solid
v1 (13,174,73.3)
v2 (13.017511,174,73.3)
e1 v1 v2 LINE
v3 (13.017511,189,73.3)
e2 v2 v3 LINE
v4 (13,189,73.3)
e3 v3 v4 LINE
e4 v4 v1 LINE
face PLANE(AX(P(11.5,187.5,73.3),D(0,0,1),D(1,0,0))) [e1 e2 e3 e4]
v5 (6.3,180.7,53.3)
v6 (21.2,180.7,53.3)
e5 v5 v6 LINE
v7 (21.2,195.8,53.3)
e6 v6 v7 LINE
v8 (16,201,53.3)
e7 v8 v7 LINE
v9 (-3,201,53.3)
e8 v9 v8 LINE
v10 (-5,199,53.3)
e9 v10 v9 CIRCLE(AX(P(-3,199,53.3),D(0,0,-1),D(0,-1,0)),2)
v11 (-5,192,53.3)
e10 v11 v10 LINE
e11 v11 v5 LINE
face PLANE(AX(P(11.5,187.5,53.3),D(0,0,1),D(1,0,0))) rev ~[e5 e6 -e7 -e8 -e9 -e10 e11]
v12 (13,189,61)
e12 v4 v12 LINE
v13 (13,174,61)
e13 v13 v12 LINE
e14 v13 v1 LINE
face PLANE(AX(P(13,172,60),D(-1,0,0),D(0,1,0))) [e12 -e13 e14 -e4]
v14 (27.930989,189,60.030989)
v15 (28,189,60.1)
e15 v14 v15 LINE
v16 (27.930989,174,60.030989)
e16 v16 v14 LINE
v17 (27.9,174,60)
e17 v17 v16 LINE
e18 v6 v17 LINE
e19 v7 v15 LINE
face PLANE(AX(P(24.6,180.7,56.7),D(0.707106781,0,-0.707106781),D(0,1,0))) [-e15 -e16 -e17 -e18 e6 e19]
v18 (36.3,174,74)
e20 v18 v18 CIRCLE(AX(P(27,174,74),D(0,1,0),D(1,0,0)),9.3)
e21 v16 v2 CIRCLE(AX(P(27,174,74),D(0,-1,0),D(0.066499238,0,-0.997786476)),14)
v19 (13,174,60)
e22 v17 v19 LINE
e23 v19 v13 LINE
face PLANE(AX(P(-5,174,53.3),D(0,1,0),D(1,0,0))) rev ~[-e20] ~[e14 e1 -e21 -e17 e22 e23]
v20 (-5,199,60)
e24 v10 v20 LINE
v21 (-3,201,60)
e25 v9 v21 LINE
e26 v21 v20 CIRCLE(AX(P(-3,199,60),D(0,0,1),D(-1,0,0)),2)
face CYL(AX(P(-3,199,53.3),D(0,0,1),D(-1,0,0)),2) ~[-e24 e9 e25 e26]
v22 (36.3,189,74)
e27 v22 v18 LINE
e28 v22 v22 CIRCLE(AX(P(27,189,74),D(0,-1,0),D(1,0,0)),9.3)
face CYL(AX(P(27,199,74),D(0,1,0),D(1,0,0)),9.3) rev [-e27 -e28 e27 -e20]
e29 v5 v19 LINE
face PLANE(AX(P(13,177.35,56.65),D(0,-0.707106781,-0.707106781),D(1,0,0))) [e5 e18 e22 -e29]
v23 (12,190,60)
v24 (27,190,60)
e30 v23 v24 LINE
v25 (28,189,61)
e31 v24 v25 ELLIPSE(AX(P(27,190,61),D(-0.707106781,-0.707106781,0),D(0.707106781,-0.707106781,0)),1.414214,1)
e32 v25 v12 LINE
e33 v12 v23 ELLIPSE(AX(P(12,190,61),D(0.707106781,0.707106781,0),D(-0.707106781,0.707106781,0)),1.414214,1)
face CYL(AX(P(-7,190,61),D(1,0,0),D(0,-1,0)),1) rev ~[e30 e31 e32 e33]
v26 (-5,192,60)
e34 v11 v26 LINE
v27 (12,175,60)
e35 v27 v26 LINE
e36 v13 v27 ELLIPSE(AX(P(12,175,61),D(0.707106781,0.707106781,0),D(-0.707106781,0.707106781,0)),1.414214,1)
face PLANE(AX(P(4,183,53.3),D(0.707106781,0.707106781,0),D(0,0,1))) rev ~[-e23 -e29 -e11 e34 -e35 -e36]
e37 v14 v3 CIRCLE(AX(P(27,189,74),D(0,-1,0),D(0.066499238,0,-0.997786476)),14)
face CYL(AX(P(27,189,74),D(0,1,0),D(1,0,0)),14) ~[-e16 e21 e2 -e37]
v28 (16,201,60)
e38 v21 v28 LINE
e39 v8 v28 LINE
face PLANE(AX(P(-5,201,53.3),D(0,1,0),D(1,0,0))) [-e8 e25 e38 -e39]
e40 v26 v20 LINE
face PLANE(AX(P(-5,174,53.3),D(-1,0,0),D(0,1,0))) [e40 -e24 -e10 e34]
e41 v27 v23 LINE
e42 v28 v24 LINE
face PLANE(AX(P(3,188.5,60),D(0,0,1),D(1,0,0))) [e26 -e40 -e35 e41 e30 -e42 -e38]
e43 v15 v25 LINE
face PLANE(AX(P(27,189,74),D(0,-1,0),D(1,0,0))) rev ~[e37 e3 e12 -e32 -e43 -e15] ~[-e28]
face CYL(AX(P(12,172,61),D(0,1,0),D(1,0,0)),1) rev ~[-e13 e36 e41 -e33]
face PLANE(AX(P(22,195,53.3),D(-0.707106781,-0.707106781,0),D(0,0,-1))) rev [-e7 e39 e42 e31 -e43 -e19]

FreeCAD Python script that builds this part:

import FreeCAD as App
import Part
import Sketcher
Q = App.Units.Quantity


def edges_at(feature, points):
    """Names of the edges that pass closest to the given points."""
    edges = feature.Shape.Edges
    near = lambda p: min(range(len(edges)), key=lambda i: edges[i].distToShape(Part.Vertex(*p))[0])
    return sorted({f"Edge{near(p) + 1}" for p in points})

doc = App.newDocument("Part")
body = doc.addObject("PartDesign::Body", "Body")

# Sketch on XZ plane
sketch1 = doc.addObject("Sketcher::SketchObject", "Sketch")
body.addObject(sketch1)
sketch1.AttachmentSupport = (doc.XZ_Plane, [""])
sketch1.MapMode = "FlatFace"
sketch1.AttachmentOffset = App.Placement(App.Vector(0, 0, -199), App.Rotation())
sketch1.addGeometry(Part.Circle(App.Vector(27, 74, 0), App.Vector(0, 0, 1), 9.3), False)
sketch1.addConstraint(Sketcher.Constraint("Diameter", 0, Q("18.6 mm")))
sketch1.addConstraint(Sketcher.Constraint("DistanceX", -1, 1, 0, 3, Q("27 mm")))
sketch1.addConstraint(Sketcher.Constraint("DistanceY", -1, 1, 0, 3, Q("74 mm")))
pad1 = doc.addObject("PartDesign::Pad", "Pad")
body.addObject(pad1)
pad1.Profile = sketch1
pad1.Length = 30
body2 = doc.addObject("PartDesign::Body", "Body001")

# Sketch on XY plane
sketch2 = doc.addObject("Sketcher::SketchObject", "Sketch001")
body2.addObject(sketch2)
sketch2.AttachmentSupport = (doc.getObject("XY_Plane001"), [""])
sketch2.MapMode = "FlatFace"
sketch2.AttachmentOffset = App.Placement(App.Vector(0, 0, 60), App.Rotation())
sketch2.addGeometry(Part.LineSegment(App.Vector(-7, 205, 0), App.Vector(-7, 189, 0)), False)
sketch2.addGeometry(Part.LineSegment(App.Vector(-7, 189, 0), App.Vector(31, 189, 0)), False)
sketch2.addGeometry(Part.LineSegment(App.Vector(31, 189, 0), App.Vector(31, 205, 0)), False)
sketch2.addGeometry(Part.LineSegment(App.Vector(31, 205, 0), App.Vector(-7, 205, 0)), False)
sketch2.addConstraint(Sketcher.Constraint("Coincident", 0, 2, 1, 1))
sketch2.addConstraint(Sketcher.Constraint("Coincident", 1, 2, 2, 1))
sketch2.addConstraint(Sketcher.Constraint("Coincident", 2, 2, 3, 1))
sketch2.addConstraint(Sketcher.Constraint("Coincident", 3, 2, 0, 1))
sketch2.addConstraint(Sketcher.Constraint("Vertical", 0))
sketch2.addConstraint(Sketcher.Constraint("Horizontal", 1))
sketch2.addConstraint(Sketcher.Constraint("Vertical", 2))
sketch2.addConstraint(Sketcher.Constraint("Horizontal", 3))
sketch2.addConstraint(Sketcher.Constraint("DistanceX", 1, 1, 1, 2, Q("38 mm")))
sketch2.addConstraint(Sketcher.Constraint("DistanceY", 0, 2, 0, 1, Q("16 mm")))
sketch2.addConstraint(Sketcher.Constraint("DistanceX", 0, 2, -1, 1, Q("7 mm")))
sketch2.addConstraint(Sketcher.Constraint("DistanceY", -1, 1, 0, 2, Q("189 mm")))
pad2 = doc.addObject("PartDesign::Pad", "Pad001")
body2.addObject(pad2)
pad2.Profile = sketch2
pad2.Length = 16
doc.recompute()

fillet = doc.addObject("PartDesign::Fillet", "Fillet")
body2.addObject(fillet)
fillet.Base = (pad2, edges_at(pad2, [(12, 189, 60)]))
fillet.Radius = 1
body3 = doc.addObject("PartDesign::Body", "Body002")

# Sketch on XY plane
sketch3 = doc.addObject("Sketcher::SketchObject", "Sketch002")
body3.addObject(sketch3)
sketch3.AttachmentSupport = (doc.getObject("XY_Plane002"), [""])
sketch3.MapMode = "FlatFace"
sketch3.AttachmentOffset = App.Placement(App.Vector(0, 0, 60), App.Rotation())
sketch3.addGeometry(Part.LineSegment(App.Vector(-7, 205, 0), App.Vector(-7, 172, 0)), False)
sketch3.addGeometry(Part.LineSegment(App.Vector(-7, 172, 0), App.Vector(13, 172, 0)), False)
sketch3.addGeometry(Part.LineSegment(App.Vector(13, 172, 0), App.Vector(13, 205, 0)), False)
sketch3.addGeometry(Part.LineSegment(App.Vector(13, 205, 0), App.Vector(-7, 205, 0)), False)
sketch3.addConstraint(Sketcher.Constraint("Coincident", 0, 2, 1, 1))
sketch3.addConstraint(Sketcher.Constraint("Coincident", 1, 2, 2, 1))
sketch3.addConstraint(Sketcher.Constraint("Coincident", 2, 2, 3, 1))
sketch3.addConstraint(Sketcher.Constraint("Coincident", 3, 2, 0, 1))
sketch3.addConstraint(Sketcher.Constraint("Vertical", 0))
sketch3.addConstraint(Sketcher.Constraint("Horizontal", 1))
sketch3.addConstraint(Sketcher.Constraint("Vertical", 2))
sketch3.addConstraint(Sketcher.Constraint("Horizontal", 3))
sketch3.addConstraint(Sketcher.Constraint("DistanceX", 1, 1, 1, 2, Q("20 mm")))
sketch3.addConstraint(Sketcher.Constraint("DistanceY", 0, 2, 0, 1, Q("33 mm")))
sketch3.addConstraint(Sketcher.Constraint("DistanceX", 0, 2, -1, 1, Q("7 mm")))
sketch3.addConstraint(Sketcher.Constraint("DistanceY", -1, 1, 0, 2, Q("172 mm")))
pad3 = doc.addObject("PartDesign::Pad", "Pad002")
body3.addObject(pad3)
pad3.Profile = sketch3
pad3.Length = 16
doc.recompute()

fillet2 = doc.addObject("PartDesign::Fillet", "Fillet001")
body3.addObject(fillet2)
fillet2.Base = (pad3, edges_at(pad3, [(13, 188.5, 60)]))
fillet2.Radius = 1
body4 = doc.addObject("PartDesign::Body", "Body003")

# Sketch on XY plane
sketch4 = doc.addObject("Sketcher::SketchObject", "Sketch003")
body4.addObject(sketch4)
sketch4.AttachmentSupport = (doc.getObject("XY_Plane003"), [""])
sketch4.MapMode = "FlatFace"
sketch4.AttachmentOffset = App.Placement(App.Vector(0, 0, 53.3), App.Rotation())
sketch4.addGeometry(Part.LineSegment(App.Vector(-5, 201, 0), App.Vector(-5, 174, 0)), False)
sketch4.addGeometry(Part.LineSegment(App.Vector(-5, 174, 0), App.Vector(28, 174, 0)), False)
sketch4.addGeometry(Part.LineSegment(App.Vector(28, 174, 0), App.Vector(28, 201, 0)), False)
sketch4.addGeometry(Part.LineSegment(App.Vector(28, 201, 0), App.Vector(-5, 201, 0)), False)
sketch4.addConstraint(Sketcher.Constraint("Coincident", 0, 2, 1, 1))
sketch4.addConstraint(Sketcher.Constraint("Coincident", 1, 2, 2, 1))
sketch4.addConstraint(Sketcher.Constraint("Coincident", 2, 2, 3, 1))
sketch4.addConstraint(Sketcher.Constraint("Coincident", 3, 2, 0, 1))
sketch4.addConstraint(Sketcher.Constraint("Vertical", 0))
sketch4.addConstraint(Sketcher.Constraint("Horizontal", 1))
sketch4.addConstraint(Sketcher.Constraint("Vertical", 2))
sketch4.addConstraint(Sketcher.Constraint("Horizontal", 3))
sketch4.addConstraint(Sketcher.Constraint("DistanceX", 1, 1, 1, 2, Q("33 mm")))
sketch4.addConstraint(Sketcher.Constraint("DistanceY", 0, 2, 0, 1, Q("27 mm")))
sketch4.addConstraint(Sketcher.Constraint("DistanceX", 0, 2, -1, 1, Q("5 mm")))
sketch4.addConstraint(Sketcher.Constraint("DistanceY", -1, 1, 0, 2, Q("174 mm")))
pad4 = doc.addObject("PartDesign::Pad", "Pad003")
body4.addObject(pad4)
pad4.Profile = sketch4
pad4.Length = 20
doc.recompute()

fillet3 = doc.addObject("PartDesign::Fillet", "Fillet002")
body4.addObject(fillet3)
fillet3.Base = (pad4, edges_at(pad4, [(-5, 201, 63.3)]))
fillet3.Radius = 2
doc.recompute()

chamfer = doc.addObject("PartDesign::Chamfer", "Chamfer")
body4.addObject(chamfer)
chamfer.Base = (fillet3, edges_at(fillet3, [(28, 201, 63.3)]))
chamfer.Size = 12
doc.recompute()

chamfer2 = doc.addObject("PartDesign::Chamfer", "Chamfer001")
body4.addObject(chamfer2)
chamfer2.Base = (chamfer, edges_at(chamfer, [(-5, 174, 63.3)]))
chamfer2.Size = 18
doc.recompute()

chamfer3 = doc.addObject("PartDesign::Chamfer", "Chamfer002")
body4.addObject(chamfer3)
chamfer3.Base = (chamfer2, edges_at(chamfer2, [(20.5, 174, 53.3)]))
chamfer3.Size = 6.7
doc.recompute()

chamfer4 = doc.addObject("PartDesign::Chamfer", "Chamfer003")
body4.addObject(chamfer4)
chamfer4.Base = (chamfer3, edges_at(chamfer3, [(28, 184.85, 53.3)]))
chamfer4.Size = 6.8
doc.recompute()

boolean = doc.addObject("PartDesign::Boolean", "Boolean")
body4.addObject(boolean)
boolean.Type = "Cut"
boolean.addObjects([body3])
doc.recompute()

boolean2 = doc.addObject("PartDesign::Boolean", "Boolean001")
body4.addObject(boolean2)
boolean2.Type = "Cut"
boolean2.addObjects([body2])
doc.recompute()

boolean3 = doc.addObject("PartDesign::Boolean", "Boolean002")
body4.addObject(boolean3)
boolean3.Type = "Cut"
boolean3.addObjects([body])
body5 = doc.addObject("PartDesign::Body", "Body004")

# Sketch on XZ plane
sketch5 = doc.addObject("Sketcher::SketchObject", "Sketch004")
body5.addObject(sketch5)
sketch5.AttachmentSupport = (doc.getObject("XZ_Plane004"), [""])
sketch5.MapMode = "FlatFace"
sketch5.AttachmentOffset = App.Placement(App.Vector(0, 0, -199), App.Rotation())
sketch5.addGeometry(Part.Circle(App.Vector(27, 74, 0), App.Vector(0, 0, 1), 9.3), False)
sketch5.addConstraint(Sketcher.Constraint("Diameter", 0, Q("18.6 mm")))
sketch5.addConstraint(Sketcher.Constraint("DistanceX", -1, 1, 0, 3, Q("27 mm")))
sketch5.addConstraint(Sketcher.Constraint("DistanceY", -1, 1, 0, 3, Q("74 mm")))
pad5 = doc.addObject("PartDesign::Pad", "Pad004")
body5.addObject(pad5)
pad5.Profile = sketch5
pad5.Length = 30
body6 = doc.addObject("PartDesign::Body", "Body005")

# Sketch on XZ plane
sketch6 = doc.addObject("Sketcher::SketchObject", "Sketch005")
body6.addObject(sketch6)
sketch6.AttachmentSupport = (doc.getObject("XZ_Plane005"), [""])
sketch6.MapMode = "FlatFace"
sketch6.AttachmentOffset = App.Placement(App.Vector(0, 0, -189), App.Rotation())
sketch6.addGeometry(Part.Circle(App.Vector(27, 74, 0), App.Vector(0, 0, 1), 14), False)
sketch6.addConstraint(Sketcher.Constraint("Diameter", 0, Q("28 mm")))
sketch6.addConstraint(Sketcher.Constraint("DistanceX", -1, 1, 0, 3, Q("27 mm")))
sketch6.addConstraint(Sketcher.Constraint("DistanceY", -1, 1, 0, 3, Q("74 mm")))
pad6 = doc.addObject("PartDesign::Pad", "Pad005")
body6.addObject(pad6)
pad6.Profile = sketch6
pad6.Length = 15
doc.recompute()

boolean4 = doc.addObject("PartDesign::Boolean", "Boolean003")
body6.addObject(boolean4)
boolean4.Type = "Cut"
boolean4.addObjects([body5])
doc.recompute()

boolean5 = doc.addObject("PartDesign::Boolean", "Boolean004")
body6.addObject(boolean5)
boolean5.Type = "Fuse"
boolean5.addObjects([body4])

doc.recompute()
